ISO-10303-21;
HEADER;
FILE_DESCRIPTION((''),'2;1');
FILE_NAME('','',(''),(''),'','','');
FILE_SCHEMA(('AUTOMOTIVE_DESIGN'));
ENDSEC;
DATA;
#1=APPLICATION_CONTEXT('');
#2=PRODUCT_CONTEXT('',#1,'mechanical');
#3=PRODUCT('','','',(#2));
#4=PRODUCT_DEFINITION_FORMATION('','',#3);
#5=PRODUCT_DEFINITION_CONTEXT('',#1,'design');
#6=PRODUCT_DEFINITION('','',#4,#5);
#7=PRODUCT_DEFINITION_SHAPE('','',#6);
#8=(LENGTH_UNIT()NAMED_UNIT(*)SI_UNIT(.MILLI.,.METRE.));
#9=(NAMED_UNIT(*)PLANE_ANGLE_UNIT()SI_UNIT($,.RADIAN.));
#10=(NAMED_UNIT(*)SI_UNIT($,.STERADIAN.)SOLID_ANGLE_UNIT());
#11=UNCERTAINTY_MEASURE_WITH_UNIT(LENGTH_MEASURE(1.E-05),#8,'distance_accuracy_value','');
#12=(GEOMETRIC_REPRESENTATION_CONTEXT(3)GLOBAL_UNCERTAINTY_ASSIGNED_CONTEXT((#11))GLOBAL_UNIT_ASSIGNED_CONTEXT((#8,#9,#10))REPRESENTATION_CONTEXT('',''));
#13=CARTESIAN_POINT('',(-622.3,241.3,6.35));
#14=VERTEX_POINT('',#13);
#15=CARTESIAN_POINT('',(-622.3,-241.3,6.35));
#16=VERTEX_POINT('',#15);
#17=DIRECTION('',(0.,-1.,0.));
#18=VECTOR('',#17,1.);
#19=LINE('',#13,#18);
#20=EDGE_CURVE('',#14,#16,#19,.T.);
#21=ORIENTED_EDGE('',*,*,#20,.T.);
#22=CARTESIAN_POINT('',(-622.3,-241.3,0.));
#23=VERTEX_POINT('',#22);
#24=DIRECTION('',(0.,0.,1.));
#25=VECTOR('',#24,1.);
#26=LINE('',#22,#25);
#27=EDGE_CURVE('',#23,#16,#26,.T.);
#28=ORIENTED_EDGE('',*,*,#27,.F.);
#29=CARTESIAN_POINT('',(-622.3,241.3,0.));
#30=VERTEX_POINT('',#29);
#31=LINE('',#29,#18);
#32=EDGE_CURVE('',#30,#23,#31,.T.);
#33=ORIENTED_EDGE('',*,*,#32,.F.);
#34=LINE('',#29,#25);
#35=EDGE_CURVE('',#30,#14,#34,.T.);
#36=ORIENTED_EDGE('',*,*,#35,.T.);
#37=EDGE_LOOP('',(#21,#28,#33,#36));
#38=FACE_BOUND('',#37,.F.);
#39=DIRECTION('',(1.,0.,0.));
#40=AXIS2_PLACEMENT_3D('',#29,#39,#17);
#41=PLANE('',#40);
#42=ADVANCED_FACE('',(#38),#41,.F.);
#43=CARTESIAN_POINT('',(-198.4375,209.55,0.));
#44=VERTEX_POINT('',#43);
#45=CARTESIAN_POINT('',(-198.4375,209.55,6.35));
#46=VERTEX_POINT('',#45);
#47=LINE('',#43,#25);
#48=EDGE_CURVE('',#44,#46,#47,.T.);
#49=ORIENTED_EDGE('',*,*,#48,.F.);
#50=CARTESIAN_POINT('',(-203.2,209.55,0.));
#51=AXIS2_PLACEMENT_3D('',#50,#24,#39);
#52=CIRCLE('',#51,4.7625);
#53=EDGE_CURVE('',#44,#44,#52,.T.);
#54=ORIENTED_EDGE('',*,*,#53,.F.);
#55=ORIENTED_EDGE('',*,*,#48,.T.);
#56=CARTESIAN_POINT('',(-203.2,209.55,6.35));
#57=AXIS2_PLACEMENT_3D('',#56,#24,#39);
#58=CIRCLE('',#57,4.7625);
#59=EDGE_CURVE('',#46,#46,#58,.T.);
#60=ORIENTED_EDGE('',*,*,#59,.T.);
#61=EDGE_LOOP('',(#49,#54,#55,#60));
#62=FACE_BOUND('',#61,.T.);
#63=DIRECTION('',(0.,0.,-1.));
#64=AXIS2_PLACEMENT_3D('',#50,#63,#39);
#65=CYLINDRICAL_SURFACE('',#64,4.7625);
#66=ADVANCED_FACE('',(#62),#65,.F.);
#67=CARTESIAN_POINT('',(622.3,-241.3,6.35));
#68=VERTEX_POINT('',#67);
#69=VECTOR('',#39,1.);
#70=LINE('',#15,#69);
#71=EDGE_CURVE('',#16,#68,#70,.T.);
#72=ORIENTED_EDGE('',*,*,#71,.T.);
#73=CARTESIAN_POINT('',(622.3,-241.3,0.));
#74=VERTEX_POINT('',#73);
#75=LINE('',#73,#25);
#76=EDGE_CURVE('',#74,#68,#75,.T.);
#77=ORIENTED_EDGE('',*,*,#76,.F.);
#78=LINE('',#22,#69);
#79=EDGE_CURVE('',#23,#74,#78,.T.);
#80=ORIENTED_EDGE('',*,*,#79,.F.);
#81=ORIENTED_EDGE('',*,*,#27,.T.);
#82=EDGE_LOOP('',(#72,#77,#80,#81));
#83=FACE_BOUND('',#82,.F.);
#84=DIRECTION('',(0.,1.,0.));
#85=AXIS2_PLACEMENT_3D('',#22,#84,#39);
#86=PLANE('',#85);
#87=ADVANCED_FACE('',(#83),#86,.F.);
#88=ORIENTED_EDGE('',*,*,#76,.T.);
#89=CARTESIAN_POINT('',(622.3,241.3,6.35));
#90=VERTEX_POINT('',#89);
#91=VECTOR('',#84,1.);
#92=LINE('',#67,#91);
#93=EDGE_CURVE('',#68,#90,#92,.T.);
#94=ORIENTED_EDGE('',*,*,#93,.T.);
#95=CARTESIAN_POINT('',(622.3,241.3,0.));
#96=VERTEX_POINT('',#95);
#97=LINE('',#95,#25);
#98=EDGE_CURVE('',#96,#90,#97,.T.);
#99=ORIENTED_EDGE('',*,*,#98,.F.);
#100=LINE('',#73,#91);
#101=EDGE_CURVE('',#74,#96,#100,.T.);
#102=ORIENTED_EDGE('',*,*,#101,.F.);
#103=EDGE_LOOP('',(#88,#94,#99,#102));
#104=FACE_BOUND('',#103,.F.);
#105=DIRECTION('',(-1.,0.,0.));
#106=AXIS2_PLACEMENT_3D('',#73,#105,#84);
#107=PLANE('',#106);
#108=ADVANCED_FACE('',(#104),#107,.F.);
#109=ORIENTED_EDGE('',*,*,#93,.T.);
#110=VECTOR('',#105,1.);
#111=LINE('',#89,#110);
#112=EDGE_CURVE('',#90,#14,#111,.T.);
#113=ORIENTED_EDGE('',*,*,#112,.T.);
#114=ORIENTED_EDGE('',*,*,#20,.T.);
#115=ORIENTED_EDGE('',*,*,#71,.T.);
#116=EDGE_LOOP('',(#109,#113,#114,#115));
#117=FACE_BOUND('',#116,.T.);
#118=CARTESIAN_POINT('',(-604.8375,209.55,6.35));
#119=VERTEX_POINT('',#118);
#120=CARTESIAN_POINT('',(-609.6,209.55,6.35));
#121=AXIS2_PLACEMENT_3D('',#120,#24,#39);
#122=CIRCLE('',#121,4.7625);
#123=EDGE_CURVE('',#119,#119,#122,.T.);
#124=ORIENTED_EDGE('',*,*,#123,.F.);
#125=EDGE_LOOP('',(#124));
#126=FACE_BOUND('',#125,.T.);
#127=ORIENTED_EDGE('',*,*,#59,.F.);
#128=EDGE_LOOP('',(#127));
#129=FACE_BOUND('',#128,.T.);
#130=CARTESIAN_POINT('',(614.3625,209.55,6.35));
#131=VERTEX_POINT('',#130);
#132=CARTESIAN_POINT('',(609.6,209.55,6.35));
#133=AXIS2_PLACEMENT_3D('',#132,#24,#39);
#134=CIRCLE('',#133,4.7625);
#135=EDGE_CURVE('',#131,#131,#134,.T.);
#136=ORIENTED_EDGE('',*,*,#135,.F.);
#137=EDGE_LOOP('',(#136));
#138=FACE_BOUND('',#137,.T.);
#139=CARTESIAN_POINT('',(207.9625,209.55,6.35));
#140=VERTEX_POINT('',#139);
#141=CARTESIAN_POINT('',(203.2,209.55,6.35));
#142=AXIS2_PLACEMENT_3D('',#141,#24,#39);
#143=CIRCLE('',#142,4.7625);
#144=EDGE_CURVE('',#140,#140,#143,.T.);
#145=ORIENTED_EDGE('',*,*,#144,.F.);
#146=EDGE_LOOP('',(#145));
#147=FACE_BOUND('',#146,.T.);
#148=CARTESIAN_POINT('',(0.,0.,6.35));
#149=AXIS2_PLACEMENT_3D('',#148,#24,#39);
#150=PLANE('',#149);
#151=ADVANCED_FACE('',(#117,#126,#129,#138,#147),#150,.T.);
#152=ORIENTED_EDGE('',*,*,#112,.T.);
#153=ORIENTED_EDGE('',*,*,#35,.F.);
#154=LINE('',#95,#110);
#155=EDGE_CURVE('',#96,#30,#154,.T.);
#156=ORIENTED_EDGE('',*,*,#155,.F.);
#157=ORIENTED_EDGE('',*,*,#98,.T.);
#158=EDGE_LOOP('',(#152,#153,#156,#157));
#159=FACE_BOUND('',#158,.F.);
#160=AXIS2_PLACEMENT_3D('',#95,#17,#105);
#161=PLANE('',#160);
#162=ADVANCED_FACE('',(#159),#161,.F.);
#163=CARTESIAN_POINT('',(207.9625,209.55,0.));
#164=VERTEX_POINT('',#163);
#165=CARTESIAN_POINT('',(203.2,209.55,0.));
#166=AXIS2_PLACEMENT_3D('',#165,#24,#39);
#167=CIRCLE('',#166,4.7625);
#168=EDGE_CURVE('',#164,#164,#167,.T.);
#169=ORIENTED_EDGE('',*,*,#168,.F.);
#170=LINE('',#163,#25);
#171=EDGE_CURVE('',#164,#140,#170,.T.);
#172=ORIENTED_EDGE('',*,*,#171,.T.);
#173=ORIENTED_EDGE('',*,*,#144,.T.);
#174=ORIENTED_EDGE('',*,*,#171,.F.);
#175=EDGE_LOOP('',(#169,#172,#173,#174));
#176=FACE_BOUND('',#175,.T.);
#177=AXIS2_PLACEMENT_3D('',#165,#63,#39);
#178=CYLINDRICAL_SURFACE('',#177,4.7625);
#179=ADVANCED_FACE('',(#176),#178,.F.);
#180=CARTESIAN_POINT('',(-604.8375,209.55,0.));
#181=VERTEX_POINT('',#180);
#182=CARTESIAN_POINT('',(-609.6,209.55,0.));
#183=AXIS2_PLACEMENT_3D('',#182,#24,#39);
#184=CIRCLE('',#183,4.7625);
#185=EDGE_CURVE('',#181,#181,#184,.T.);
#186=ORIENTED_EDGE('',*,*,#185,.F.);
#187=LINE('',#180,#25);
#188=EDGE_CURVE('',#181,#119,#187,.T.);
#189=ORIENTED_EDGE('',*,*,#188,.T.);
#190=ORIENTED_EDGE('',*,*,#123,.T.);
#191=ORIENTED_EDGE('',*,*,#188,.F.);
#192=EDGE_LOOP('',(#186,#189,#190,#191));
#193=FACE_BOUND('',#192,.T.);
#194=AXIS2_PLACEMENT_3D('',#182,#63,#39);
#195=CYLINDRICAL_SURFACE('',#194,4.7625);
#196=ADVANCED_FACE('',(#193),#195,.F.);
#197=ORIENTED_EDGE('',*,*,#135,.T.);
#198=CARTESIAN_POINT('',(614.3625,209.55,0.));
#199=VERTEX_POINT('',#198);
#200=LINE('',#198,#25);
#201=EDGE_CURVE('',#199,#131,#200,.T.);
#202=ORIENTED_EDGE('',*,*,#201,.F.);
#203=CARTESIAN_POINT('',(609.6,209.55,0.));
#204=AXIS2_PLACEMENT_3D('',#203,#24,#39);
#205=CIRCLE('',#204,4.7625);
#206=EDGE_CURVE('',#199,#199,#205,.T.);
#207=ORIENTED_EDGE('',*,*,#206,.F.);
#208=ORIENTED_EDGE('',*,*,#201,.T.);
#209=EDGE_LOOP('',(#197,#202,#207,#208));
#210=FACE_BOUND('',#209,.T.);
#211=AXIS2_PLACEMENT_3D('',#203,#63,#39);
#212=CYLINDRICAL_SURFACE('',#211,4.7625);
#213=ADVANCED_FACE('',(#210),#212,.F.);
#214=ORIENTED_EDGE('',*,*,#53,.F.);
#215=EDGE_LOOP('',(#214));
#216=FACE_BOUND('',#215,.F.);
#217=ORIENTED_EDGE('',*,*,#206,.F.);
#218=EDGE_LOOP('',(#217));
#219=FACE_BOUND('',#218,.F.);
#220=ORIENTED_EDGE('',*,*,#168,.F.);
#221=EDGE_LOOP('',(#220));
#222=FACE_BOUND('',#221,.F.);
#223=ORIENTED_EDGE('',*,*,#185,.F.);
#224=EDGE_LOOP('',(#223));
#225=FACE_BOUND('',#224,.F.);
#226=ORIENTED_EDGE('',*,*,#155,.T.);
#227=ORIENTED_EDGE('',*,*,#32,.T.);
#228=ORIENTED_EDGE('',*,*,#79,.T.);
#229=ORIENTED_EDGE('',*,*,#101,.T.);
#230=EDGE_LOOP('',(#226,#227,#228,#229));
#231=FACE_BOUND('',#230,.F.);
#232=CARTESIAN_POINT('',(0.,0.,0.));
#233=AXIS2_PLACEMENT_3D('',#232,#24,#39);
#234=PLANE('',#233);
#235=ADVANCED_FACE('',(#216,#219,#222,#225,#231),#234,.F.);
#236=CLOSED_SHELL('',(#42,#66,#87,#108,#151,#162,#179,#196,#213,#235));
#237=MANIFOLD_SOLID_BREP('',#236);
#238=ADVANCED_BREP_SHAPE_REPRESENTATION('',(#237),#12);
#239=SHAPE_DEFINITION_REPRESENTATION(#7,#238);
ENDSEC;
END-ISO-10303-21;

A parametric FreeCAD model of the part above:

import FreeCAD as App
import Part
import Sketcher

V = App.Vector
Q = App.Units.Quantity

doc = App.newDocument("Part")
body = doc.addObject("PartDesign::Body", "Body")

# Sketch on XY plane
sketch1 = body.newObject("Sketcher::SketchObject", "Sketch")
sketch1.AttachmentSupport = (doc.getObject("XY_Plane"), [""])
sketch1.MapMode = "FlatFace"
sketch1.addGeometry(Part.LineSegment(V(-622.3, 241.3, 0), V(-622.3, -241.3, 0)), False)
sketch1.addGeometry(Part.LineSegment(V(-622.3, -241.3, 0), V(622.3, -241.3, 0)), False)
sketch1.addGeometry(Part.LineSegment(V(622.3, -241.3, 0), V(622.3, 241.3, 0)), False)
sketch1.addGeometry(Part.LineSegment(V(622.3, 241.3, 0), V(-622.3, 241.3, 0)), False)
sketch1.addGeometry(Part.Circle(V(-609.6, 209.6, 0), V(0, 0, 1), 4.8), False)
sketch1.addGeometry(Part.Circle(V(-203.2, 209.6, 0), V(0, 0, 1), 4.8), False)
sketch1.addGeometry(Part.Circle(V(203.2, 209.6, 0), V(0, 0, 1), 4.8), False)
sketch1.addGeometry(Part.Circle(V(609.6, 209.6, 0), V(0, 0, 1), 4.8), False)
sketch1.addConstraint(Sketcher.Constraint("Coincident", 0, 2, 1, 1))
sketch1.addConstraint(Sketcher.Constraint("Coincident", 1, 2, 2, 1))
sketch1.addConstraint(Sketcher.Constraint("Coincident", 2, 2, 3, 1))
sketch1.addConstraint(Sketcher.Constraint("Coincident", 3, 2, 0, 1))
sketch1.addConstraint(Sketcher.Constraint("Vertical", 0))
sketch1.addConstraint(Sketcher.Constraint("Horizontal", 1))
sketch1.addConstraint(Sketcher.Constraint("Vertical", 2))
sketch1.addConstraint(Sketcher.Constraint("Horizontal", 3))
sketch1.addConstraint(Sketcher.Constraint("Equal", 4, 5))
sketch1.addConstraint(Sketcher.Constraint("Equal", 5, 6))
sketch1.addConstraint(Sketcher.Constraint("Equal", 6, 7))
sketch1.addConstraint(Sketcher.Constraint("Symmetric", 0, 2, 2, 2, -1, 1))
sketch1.addConstraint(Sketcher.Constraint("Symmetric", 5, 3, 6, 3, -2))
sketch1.addConstraint(Sketcher.Constraint("Symmetric", 4, 3, 7, 3, -2))
sketch1.addConstraint(Sketcher.Constraint("Horizontal", 4, 3, 5, 3))
sketch1.addConstraint(Sketcher.Constraint("DistanceX", 1, 1, 1, 2, Q("49 in")))
sketch1.addConstraint(Sketcher.Constraint("DistanceY", 0, 2, 0, 1, Q("19 in")))
sketch1.addConstraint(Sketcher.Constraint("Diameter", 4, Q("0.375 in")))
sketch1.addConstraint(Sketcher.Constraint("DistanceX", 5, 3, -1, 1, Q("8 in")))
sketch1.addConstraint(Sketcher.Constraint("DistanceX", 4, 3, 5, 3, Q("16 in")))
sketch1.addConstraint(Sketcher.Constraint("DistanceY", 7, 3, 2, 2, Q("1.25 in")))
pad1 = body.newObject("PartDesign::Pad", "Pad")
pad1.Profile = sketch1
pad1.Length = Q("0.25 in")

doc.recompute()
